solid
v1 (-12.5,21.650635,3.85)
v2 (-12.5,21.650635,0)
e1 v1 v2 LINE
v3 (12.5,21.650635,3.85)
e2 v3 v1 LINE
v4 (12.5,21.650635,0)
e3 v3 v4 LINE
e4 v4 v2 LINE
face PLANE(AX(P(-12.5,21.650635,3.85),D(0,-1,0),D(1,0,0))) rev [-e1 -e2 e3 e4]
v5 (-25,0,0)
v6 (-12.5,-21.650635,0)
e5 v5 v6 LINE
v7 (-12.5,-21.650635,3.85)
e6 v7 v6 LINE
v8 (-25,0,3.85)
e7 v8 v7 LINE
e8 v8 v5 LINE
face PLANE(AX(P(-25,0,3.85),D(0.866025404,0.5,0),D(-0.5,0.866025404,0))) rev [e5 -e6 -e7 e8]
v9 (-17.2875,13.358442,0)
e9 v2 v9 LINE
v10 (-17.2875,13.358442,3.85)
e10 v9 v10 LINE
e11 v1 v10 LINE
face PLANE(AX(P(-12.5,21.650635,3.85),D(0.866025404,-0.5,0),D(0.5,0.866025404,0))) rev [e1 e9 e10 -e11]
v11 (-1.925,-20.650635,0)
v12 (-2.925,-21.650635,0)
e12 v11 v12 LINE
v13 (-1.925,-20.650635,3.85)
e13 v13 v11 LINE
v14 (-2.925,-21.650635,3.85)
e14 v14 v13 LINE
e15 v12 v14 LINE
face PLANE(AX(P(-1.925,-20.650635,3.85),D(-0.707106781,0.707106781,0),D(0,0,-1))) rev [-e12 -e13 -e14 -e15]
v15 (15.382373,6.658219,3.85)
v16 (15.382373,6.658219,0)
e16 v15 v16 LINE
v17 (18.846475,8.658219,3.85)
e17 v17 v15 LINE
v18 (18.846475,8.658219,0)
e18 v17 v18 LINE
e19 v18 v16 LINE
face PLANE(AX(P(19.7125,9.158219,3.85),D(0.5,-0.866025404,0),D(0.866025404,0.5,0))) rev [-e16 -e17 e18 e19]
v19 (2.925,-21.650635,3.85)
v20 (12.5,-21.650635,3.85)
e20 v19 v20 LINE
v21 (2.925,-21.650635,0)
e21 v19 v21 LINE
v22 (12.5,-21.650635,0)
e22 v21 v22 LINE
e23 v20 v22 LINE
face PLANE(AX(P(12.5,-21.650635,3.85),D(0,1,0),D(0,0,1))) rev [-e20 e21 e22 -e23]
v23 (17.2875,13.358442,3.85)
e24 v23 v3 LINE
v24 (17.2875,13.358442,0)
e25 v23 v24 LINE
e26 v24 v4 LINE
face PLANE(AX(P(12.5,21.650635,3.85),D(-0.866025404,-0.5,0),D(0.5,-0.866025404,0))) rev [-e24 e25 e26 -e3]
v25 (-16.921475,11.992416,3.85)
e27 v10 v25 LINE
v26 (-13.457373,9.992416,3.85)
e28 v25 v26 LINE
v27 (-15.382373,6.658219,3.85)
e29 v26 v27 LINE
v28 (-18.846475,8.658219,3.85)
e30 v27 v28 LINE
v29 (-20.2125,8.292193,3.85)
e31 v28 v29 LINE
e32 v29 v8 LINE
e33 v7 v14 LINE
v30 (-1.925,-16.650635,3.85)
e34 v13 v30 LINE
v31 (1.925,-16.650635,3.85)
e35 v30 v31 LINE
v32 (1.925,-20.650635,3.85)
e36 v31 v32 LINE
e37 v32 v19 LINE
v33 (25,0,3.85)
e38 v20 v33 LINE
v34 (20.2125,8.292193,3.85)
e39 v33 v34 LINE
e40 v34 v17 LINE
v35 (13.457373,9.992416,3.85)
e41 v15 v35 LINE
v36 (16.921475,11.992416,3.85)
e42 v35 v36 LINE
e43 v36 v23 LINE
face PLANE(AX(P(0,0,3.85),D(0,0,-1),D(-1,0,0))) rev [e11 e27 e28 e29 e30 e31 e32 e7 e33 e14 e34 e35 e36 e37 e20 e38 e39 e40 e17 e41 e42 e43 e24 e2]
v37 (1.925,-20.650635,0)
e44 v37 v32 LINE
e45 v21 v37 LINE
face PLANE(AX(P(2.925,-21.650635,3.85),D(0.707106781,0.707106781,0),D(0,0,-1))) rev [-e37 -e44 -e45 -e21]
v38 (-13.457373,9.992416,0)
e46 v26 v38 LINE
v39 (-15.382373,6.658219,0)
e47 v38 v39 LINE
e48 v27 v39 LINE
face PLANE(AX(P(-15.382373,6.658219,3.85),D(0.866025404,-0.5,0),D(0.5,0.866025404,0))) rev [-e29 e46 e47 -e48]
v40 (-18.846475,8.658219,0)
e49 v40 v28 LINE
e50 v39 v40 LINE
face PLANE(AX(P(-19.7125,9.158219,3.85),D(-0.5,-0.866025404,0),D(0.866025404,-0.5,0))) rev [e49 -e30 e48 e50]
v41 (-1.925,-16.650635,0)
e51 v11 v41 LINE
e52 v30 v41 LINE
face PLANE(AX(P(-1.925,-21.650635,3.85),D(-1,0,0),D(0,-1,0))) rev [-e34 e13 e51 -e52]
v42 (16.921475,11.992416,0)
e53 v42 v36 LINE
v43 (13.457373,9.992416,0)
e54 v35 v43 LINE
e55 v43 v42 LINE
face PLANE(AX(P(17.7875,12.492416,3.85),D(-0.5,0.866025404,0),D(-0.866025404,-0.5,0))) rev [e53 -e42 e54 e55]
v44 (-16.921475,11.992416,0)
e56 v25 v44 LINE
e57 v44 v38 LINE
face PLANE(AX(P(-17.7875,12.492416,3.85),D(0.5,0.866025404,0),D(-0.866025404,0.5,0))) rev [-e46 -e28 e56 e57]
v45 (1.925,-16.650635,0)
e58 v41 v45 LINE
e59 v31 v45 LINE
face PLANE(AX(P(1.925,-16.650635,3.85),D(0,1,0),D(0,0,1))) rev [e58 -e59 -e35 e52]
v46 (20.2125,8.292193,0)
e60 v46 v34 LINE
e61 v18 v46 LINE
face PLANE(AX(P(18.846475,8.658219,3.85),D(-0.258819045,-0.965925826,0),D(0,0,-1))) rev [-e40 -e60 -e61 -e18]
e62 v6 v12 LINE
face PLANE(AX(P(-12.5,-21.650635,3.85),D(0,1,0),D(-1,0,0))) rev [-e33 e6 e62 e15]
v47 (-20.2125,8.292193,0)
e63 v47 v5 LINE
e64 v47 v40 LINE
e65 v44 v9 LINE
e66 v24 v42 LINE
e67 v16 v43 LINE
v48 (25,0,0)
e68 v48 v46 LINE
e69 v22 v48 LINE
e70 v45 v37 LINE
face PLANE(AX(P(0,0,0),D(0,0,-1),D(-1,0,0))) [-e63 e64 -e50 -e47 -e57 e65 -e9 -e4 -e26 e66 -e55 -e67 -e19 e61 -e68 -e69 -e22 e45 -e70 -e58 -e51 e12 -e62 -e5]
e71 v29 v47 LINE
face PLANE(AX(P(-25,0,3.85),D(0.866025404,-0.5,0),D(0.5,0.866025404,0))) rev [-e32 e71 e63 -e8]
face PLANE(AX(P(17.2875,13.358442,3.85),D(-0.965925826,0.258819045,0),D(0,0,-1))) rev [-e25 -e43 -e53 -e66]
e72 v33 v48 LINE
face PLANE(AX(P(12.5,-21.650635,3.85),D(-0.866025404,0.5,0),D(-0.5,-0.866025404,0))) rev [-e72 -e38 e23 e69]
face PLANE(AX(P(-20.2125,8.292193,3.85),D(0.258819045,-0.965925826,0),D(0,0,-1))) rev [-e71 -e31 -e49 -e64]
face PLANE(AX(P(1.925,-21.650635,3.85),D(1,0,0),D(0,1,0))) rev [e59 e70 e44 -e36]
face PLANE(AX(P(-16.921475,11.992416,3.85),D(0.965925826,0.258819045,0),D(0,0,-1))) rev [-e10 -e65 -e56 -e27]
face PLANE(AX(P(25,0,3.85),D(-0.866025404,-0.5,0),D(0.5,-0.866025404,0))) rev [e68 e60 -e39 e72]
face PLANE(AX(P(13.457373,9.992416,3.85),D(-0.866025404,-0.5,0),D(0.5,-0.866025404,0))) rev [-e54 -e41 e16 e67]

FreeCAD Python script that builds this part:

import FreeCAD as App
import Part
import Sketcher
from FreeCAD import Vector
Q = App.Units.Quantity


def edges_at(feature, points):
    """Names of the edges that pass closest to the given points."""
    edges = feature.Shape.Edges
    near = lambda p: min(range(len(edges)), key=lambda i: edges[i].distToShape(Part.Vertex(*p))[0])
    return sorted({f"Edge{near(p) + 1}" for p in points})

doc = App.newDocument("Part")
body = doc.addObject("PartDesign::Body", "Body")

sketch1 = body.newObject("Sketcher::SketchObject", "Sketch")
sketch1.AttachmentSupport = (doc.getObject("XY_Plane"), [""])
sketch1.MapMode = "FlatFace"
sketch1.addGeometry([
    Part.LineSegment(Vector(25, 0, 0), Vector(19.7125, 9.158219, 0)),
    Part.LineSegment(Vector(19.7125, 9.158219, 0), Vector(15.382373, 6.658219, 0)),
    Part.LineSegment(Vector(15.382373, 6.658219, 0), Vector(13.457373, 9.992416, 0)),
    Part.LineSegment(Vector(13.457373, 9.992416, 0), Vector(17.7875, 12.492416, 0)),
    Part.LineSegment(Vector(17.7875, 12.492416, 0), Vector(12.5, 21.650635, 0)),
    Part.LineSegment(Vector(12.5, 21.650635, 0), Vector(-12.5, 21.650635, 0)),
    Part.LineSegment(Vector(-12.5, 21.650635, 0), Vector(-17.7875, 12.492416, 0)),
    Part.LineSegment(Vector(-17.7875, 12.492416, 0), Vector(-13.457373, 9.992416, 0)),
    Part.LineSegment(Vector(-13.457373, 9.992416, 0), Vector(-15.382373, 6.658219, 0)),
    Part.LineSegment(Vector(-15.382373, 6.658219, 0), Vector(-19.7125, 9.158219, 0)),
    Part.LineSegment(Vector(-19.7125, 9.158219, 0), Vector(-25, 0, 0)),
    Part.LineSegment(Vector(-25, 0, 0), Vector(-12.5, -21.650635, 0)),
    Part.LineSegment(Vector(-12.5, -21.650635, 0), Vector(-1.925, -21.650635, 0)),
    Part.LineSegment(Vector(-1.925, -21.650635, 0), Vector(-1.925, -16.650635, 0)),
    Part.LineSegment(Vector(-1.925, -16.650635, 0), Vector(1.925, -16.650635, 0)),
    Part.LineSegment(Vector(1.925, -16.650635, 0), Vector(1.925, -21.650635, 0)),
    Part.LineSegment(Vector(1.925, -21.650635, 0), Vector(12.5, -21.650635, 0)),
    Part.LineSegment(Vector(12.5, -21.650635, 0), Vector(25, 0, 0)),
], False)
sketch1.addConstraint([
    Sketcher.Constraint("Coincident", 0, 2, 1, 1),
    Sketcher.Constraint("Coincident", 1, 2, 2, 1),
    Sketcher.Constraint("Coincident", 2, 2, 3, 1),
    Sketcher.Constraint("Coincident", 3, 2, 4, 1),
    Sketcher.Constraint("Coincident", 4, 2, 5, 1),
    Sketcher.Constraint("Coincident", 5, 2, 6, 1),
    Sketcher.Constraint("Coincident", 6, 2, 7, 1),
    Sketcher.Constraint("Coincident", 7, 2, 8, 1),
    Sketcher.Constraint("Coincident", 8, 2, 9, 1),
    Sketcher.Constraint("Coincident", 9, 2, 10, 1),
    Sketcher.Constraint("Coincident", 10, 2, 11, 1),
    Sketcher.Constraint("Coincident", 11, 2, 12, 1),
    Sketcher.Constraint("Coincident", 12, 2, 13, 1),
    Sketcher.Constraint("Coincident", 13, 2, 14, 1),
    Sketcher.Constraint("Coincident", 14, 2, 15, 1),
    Sketcher.Constraint("Coincident", 15, 2, 16, 1),
    Sketcher.Constraint("Coincident", 16, 2, 17, 1),
    Sketcher.Constraint("Coincident", 17, 2, 0, 1),
    Sketcher.Constraint("Horizontal", 5),
    Sketcher.Constraint("Horizontal", 12),
    Sketcher.Constraint("Vertical", 13),
    Sketcher.Constraint("Horizontal", 14),
    Sketcher.Constraint("Vertical", 15),
    Sketcher.Constraint("Horizontal", 16),
    Sketcher.Constraint("Symmetric", 4, 2, 11, 2, -1, 1),
    Sketcher.Constraint("Symmetric", 5, 2, 16, 2, -1, 1),
    Sketcher.Constraint("Symmetric", 10, 2, 17, 2, -1, 1),
    Sketcher.Constraint("Symmetric", 3, 2, 6, 2, -2),
    Sketcher.Constraint("Symmetric", 2, 2, 7, 2, -2),
    Sketcher.Constraint("Symmetric", 1, 2, 8, 2, -2),
    Sketcher.Constraint("Symmetric", 0, 2, 9, 2, -2),
    Sketcher.Constraint("PointOnObject", 10, 2, -1),
    Sketcher.Constraint("Perpendicular", 0, 1),
    Sketcher.Constraint("Perpendicular", 1, 2),
    Sketcher.Constraint("Perpendicular", 2, 3),
    Sketcher.Constraint("Perpendicular", 3, 4),
    Sketcher.Constraint("Perpendicular", 6, 7),
    Sketcher.Constraint("Parallel", 4, 11),
    Sketcher.Constraint("Equal", 12, 16),
    Sketcher.Constraint("Equal", 0, 4),
    Sketcher.Constraint("DistanceX", 5, 2, 5, 1, Q("25 mm")),
    Sketcher.Constraint("DistanceY", 13, 1, 13, 2, Q("5 mm")),
    Sketcher.Constraint("Angle", 0, Q("120 deg")),
    Sketcher.Constraint("Distance", 1, Q("5 mm")),
    Sketcher.Constraint("Distance", 11, Q("25 mm")),
    Sketcher.Constraint("DistanceX", 14, 1, 14, 2, Q("3.85 mm")),
    Sketcher.Constraint("Distance", 2, Q("3.85 mm")),
])
pad1 = body.newObject("PartDesign::Pad", "Pad")
pad1.Profile = sketch1
pad1.Length = 3.85
doc.recompute()

chamfer = body.newObject("PartDesign::Chamfer", "Chamfer")
chamfer.Base = (pad1, edges_at(pad1, [
    (1.925, -21.651, 1.925),
    (-1.925, -21.651, 1.925),
    (-19.712, 9.158, 1.925),
    (-17.788, 12.492, 1.925),
    (17.788, 12.492, 1.925),
    (19.712, 9.158, 1.925),
]))
chamfer.Size = 1

doc.recompute()
